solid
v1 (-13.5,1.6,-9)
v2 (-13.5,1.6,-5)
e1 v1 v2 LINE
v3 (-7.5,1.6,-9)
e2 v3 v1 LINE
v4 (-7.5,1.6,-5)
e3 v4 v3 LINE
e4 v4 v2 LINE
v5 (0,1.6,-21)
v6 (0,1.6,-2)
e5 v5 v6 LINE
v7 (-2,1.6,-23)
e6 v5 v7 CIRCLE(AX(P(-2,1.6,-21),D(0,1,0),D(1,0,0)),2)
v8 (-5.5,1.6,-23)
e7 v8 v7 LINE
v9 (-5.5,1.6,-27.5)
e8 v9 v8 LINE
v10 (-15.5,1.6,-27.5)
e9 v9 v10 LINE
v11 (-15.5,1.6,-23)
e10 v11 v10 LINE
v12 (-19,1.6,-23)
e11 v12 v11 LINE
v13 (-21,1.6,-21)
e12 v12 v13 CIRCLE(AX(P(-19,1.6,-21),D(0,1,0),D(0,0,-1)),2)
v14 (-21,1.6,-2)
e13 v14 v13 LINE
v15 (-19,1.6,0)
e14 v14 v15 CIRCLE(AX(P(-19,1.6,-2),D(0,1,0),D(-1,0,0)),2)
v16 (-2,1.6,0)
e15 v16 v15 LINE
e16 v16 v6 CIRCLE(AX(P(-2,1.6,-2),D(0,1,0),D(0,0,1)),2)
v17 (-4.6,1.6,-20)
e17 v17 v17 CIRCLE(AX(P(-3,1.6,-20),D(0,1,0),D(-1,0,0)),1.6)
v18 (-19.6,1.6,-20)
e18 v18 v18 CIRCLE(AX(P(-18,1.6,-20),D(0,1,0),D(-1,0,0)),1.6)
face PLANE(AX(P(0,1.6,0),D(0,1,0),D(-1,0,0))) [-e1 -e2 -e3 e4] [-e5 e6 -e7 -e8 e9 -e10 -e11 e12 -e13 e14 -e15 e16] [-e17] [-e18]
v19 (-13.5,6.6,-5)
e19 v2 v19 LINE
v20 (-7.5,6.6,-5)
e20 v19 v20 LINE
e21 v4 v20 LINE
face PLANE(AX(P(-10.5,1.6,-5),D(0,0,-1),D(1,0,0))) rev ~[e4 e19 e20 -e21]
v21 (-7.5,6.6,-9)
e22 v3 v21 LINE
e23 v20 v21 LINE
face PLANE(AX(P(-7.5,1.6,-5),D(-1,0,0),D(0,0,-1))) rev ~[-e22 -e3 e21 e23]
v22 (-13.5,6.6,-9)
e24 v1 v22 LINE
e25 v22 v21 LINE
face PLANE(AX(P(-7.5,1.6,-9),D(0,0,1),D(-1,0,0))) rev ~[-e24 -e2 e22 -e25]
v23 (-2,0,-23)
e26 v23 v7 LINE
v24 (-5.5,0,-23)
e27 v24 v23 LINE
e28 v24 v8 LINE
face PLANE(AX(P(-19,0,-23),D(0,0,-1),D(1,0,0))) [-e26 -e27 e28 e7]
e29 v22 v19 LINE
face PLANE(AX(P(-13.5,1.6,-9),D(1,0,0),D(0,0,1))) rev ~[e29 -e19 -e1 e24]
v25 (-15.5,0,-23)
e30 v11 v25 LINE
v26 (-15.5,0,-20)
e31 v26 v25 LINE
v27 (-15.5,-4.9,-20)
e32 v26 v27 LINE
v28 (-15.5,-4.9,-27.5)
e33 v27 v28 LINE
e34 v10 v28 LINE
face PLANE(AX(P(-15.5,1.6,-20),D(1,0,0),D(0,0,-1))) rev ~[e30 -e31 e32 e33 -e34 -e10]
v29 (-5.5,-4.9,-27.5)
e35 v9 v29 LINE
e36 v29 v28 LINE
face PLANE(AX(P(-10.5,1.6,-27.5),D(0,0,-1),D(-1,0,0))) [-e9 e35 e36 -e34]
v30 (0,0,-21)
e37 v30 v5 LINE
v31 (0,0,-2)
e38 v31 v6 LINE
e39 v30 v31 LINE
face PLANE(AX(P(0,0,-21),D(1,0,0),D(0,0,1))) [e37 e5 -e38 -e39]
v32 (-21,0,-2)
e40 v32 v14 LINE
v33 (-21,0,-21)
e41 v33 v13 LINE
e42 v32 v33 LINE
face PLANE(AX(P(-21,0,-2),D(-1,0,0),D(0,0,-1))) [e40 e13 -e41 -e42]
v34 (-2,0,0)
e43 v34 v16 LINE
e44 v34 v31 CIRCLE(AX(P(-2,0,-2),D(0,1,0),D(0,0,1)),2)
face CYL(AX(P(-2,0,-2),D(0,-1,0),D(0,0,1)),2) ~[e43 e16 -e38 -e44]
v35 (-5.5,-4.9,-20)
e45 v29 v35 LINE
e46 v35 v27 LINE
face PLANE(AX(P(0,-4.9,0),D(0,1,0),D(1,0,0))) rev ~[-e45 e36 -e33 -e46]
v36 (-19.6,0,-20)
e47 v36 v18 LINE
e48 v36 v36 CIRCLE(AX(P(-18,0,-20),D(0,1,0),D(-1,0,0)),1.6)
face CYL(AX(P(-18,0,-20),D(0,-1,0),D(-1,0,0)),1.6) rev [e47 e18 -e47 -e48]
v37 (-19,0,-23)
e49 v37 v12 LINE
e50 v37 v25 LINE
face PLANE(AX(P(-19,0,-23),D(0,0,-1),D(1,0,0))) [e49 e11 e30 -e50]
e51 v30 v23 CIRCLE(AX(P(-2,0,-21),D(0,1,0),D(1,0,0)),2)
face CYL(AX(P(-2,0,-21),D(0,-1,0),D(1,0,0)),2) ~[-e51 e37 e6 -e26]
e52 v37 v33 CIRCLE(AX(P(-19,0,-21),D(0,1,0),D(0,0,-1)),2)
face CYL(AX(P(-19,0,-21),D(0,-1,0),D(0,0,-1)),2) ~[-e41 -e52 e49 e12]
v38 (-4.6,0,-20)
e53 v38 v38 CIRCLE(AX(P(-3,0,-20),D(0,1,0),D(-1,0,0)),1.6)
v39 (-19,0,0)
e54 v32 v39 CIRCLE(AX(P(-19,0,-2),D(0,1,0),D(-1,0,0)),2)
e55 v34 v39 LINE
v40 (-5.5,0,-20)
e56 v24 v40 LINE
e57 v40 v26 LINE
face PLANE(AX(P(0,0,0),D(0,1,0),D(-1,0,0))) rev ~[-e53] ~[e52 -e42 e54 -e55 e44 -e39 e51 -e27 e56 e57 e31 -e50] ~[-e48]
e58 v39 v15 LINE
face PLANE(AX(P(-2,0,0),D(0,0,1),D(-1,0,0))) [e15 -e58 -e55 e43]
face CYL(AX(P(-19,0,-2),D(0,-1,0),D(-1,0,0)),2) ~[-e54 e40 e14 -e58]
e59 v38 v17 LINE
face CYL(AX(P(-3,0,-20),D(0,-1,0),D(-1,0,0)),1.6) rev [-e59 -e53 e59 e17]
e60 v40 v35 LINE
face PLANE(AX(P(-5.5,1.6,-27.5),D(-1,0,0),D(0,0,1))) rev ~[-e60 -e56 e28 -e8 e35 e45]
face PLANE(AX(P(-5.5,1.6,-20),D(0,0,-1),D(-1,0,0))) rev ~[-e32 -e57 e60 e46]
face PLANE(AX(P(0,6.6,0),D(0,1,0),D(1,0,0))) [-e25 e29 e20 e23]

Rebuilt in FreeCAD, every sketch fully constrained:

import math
import FreeCAD as App
import Part
import Sketcher

doc = App.newDocument("Part")
params = doc.addObject("Spreadsheet::Sheet", "Params")
for row, (alias, value) in enumerate([
    ("sketch1_radius", "2 mm"),
    ("sketch1_diameter", "3.2 mm"),
    ("sketch1_height", "19 mm"),
    ("pad1_length", "1.6 mm"),
    ("sketch2_width", "10 mm"),
    ("sketch2_height", "7.5 mm"),
    ("pad2_length", "6.5 mm"),
    ("sketch3_height", "4 mm"),
    ("sketch3_width", "6 mm"),
    ("pad3_length", "5 mm"),
], start=1):
    params.set(f"A{row}", alias)
    params.set(f"B{row}", "=" + value)
    params.setAlias(f"B{row}", alias)

body = doc.addObject("PartDesign::Body", "Body")

# Sketch on XZ plane
sketch1 = body.newObject("Sketcher::SketchObject", "Sketch")
sketch1.AttachmentSupport = (doc.getObject("XZ_Plane"), [""])
sketch1.MapMode = "FlatFace"
sketch1.addGeometry([
    Part.LineSegment(App.Vector(-19, 0, 0), App.Vector(-2, 0, 0)),  # 0
    Part.ArcOfCircle(Part.Circle(App.Vector(-2, -2, 0), App.Vector(0, 0, 1), 2), math.radians(0), math.radians(90)),  # 1
    Part.LineSegment(App.Vector(0, -2, 0), App.Vector(0, -21, 0)),  # 2
    Part.ArcOfCircle(Part.Circle(App.Vector(-2, -21, 0), App.Vector(0, 0, 1), 2), math.radians(-90), math.radians(0)),  # 3
    Part.LineSegment(App.Vector(-2, -23, 0), App.Vector(-19, -23, 0)),  # 4
    Part.ArcOfCircle(Part.Circle(App.Vector(-19, -21, 0), App.Vector(0, 0, 1), 2), math.radians(180), math.radians(270)),  # 5
    Part.LineSegment(App.Vector(-21, -21, 0), App.Vector(-21, -2, 0)),  # 6
    Part.ArcOfCircle(Part.Circle(App.Vector(-19, -2, 0), App.Vector(0, 0, 1), 2), math.radians(90), math.radians(180)),  # 7
    Part.Circle(App.Vector(-3, -20, 0), App.Vector(0, 0, 1), 1.6),  # 8
    Part.Circle(App.Vector(-18, -20, 0), App.Vector(0, 0, 1), 1.6),  # 9
], False)
sketch1.addConstraint([
    Sketcher.Constraint("Tangent", 0, 2, 1, 2),
    Sketcher.Constraint("Tangent", 1, 1, 2, 1),
    Sketcher.Constraint("Tangent", 2, 2, 3, 2),
    Sketcher.Constraint("Tangent", 3, 1, 4, 1),
    Sketcher.Constraint("Tangent", 4, 2, 5, 2),
    Sketcher.Constraint("Tangent", 5, 1, 6, 1),
    Sketcher.Constraint("Tangent", 6, 2, 7, 2),
    Sketcher.Constraint("Tangent", 7, 1, 0, 1),
    Sketcher.Constraint("Horizontal", 0),
    Sketcher.Constraint("Vertical", 2),
    Sketcher.Constraint("Horizontal", 4),
    Sketcher.Constraint("Vertical", 6),
    Sketcher.Constraint("Equal", 1, 3),
    Sketcher.Constraint("Equal", 3, 5),
    Sketcher.Constraint("Equal", 5, 7),
    Sketcher.Constraint("Equal", 8, 9),
    Sketcher.Constraint("PointOnObject", 0, 2, -1),
    Sketcher.Constraint("PointOnObject", 1, 1, -2),
    Sketcher.Constraint("Horizontal", 8, 3, 9, 3),
    Sketcher.Constraint("Radius", 1, 2.0),
    Sketcher.Constraint("DistanceX", 8, 3, -1, 1, 3.0),
    Sketcher.Constraint("DistanceX", 9, 3, 8, 3, 15.0),
    Sketcher.Constraint("DistanceY", 3, 1, 8, 3, 3.0),
    Sketcher.Constraint("DistanceX", 5, 1, 9, 3, 3.0),
    Sketcher.Constraint("Diameter", 8, 3.2),
    Sketcher.Constraint("DistanceY", 2, 2, 2, 1, 19.0),
])
sketch1.setExpression("Constraints[19]", "Params.sketch1_radius")
sketch1.setExpression("Constraints[24]", "Params.sketch1_diameter")
sketch1.setExpression("Constraints[25]", "Params.sketch1_height")
pad1 = body.newObject("PartDesign::Pad", "Pad")
pad1.Profile = sketch1
pad1.setExpression("Length", "Params.pad1_length")
pad1.Reversed = True

# Sketch on XZ plane
sketch2 = body.newObject("Sketcher::SketchObject", "Sketch001")
sketch2.AttachmentSupport = (doc.getObject("XZ_Plane"), [""])
sketch2.MapMode = "FlatFace"
sketch2.AttachmentOffset = App.Placement(App.Vector(0, 0, -1.6), App.Rotation())
sketch2.addGeometry([
    Part.LineSegment(App.Vector(-6, -28, 0), App.Vector(-16, -28, 0)),
    Part.LineSegment(App.Vector(-16, -28, 0), App.Vector(-16, -20, 0)),
    Part.LineSegment(App.Vector(-16, -20, 0), App.Vector(-6, -20, 0)),
    Part.LineSegment(App.Vector(-6, -20, 0), App.Vector(-6, -28, 0)),
], False)
sketch2.addConstraint([
    Sketcher.Constraint("Coincident", 0, 2, 1, 1),
    Sketcher.Constraint("Coincident", 1, 2, 2, 1),
    Sketcher.Constraint("Coincident", 2, 2, 3, 1),
    Sketcher.Constraint("Coincident", 3, 2, 0, 1),
    Sketcher.Constraint("Horizontal", 0),
    Sketcher.Constraint("Vertical", 1),
    Sketcher.Constraint("Horizontal", 2),
    Sketcher.Constraint("Vertical", 3),
    Sketcher.Constraint("DistanceX", 0, 2, 0, 1, 10.0),
    Sketcher.Constraint("DistanceY", 1, 1, 1, 2, 7.5),
    Sketcher.Constraint("DistanceY", 1, 2, -1, 1, 20.0),
    Sketcher.Constraint("DistanceX", 0, 2, -1, 1, 15.5),
])
sketch2.setExpression("Constraints[8]", "Params.sketch2_width")
sketch2.setExpression("Constraints[9]", "Params.sketch2_height")
pad2 = body.newObject("PartDesign::Pad", "Pad001")
pad2.Profile = sketch2
pad2.setExpression("Length", "Params.pad2_length")

# Sketch on XZ plane
sketch3 = body.newObject("Sketcher::SketchObject", "Sketch002")
sketch3.AttachmentSupport = (doc.getObject("XZ_Plane"), [""])
sketch3.MapMode = "FlatFace"
sketch3.AttachmentOffset = App.Placement(App.Vector(0, 0, -1.6), App.Rotation())
sketch3.addGeometry([
    Part.LineSegment(App.Vector(-7.5, -9, 0), App.Vector(-13.5, -9, 0)),
    Part.LineSegment(App.Vector(-13.5, -9, 0), App.Vector(-13.5, -5, 0)),
    Part.LineSegment(App.Vector(-13.5, -5, 0), App.Vector(-7.5, -5, 0)),
    Part.LineSegment(App.Vector(-7.5, -5, 0), App.Vector(-7.5, -9, 0)),
], False)
sketch3.addConstraint([
    Sketcher.Constraint("Coincident", 0, 2, 1, 1),
    Sketcher.Constraint("Coincident", 1, 2, 2, 1),
    Sketcher.Constraint("Coincident", 2, 2, 3, 1),
    Sketcher.Constraint("Coincident", 3, 2, 0, 1),
    Sketcher.Constraint("Horizontal", 0),
    Sketcher.Constraint("Vertical", 1),
    Sketcher.Constraint("Horizontal", 2),
    Sketcher.Constraint("Vertical", 3),
    Sketcher.Constraint("DistanceY", 1, 1, 1, 2, 4.0),
    Sketcher.Constraint("DistanceX", 2, 2, -1, 1, 7.5),
    Sketcher.Constraint("DistanceX", 0, 2, 0, 1, 6.0),
    Sketcher.Constraint("DistanceY", 0, 2, -1, 1, 9.0),
])
sketch3.setExpression("Constraints[8]", "Params.sketch3_height")
sketch3.setExpression("Constraints[10]", "Params.sketch3_width")
pad3 = body.newObject("PartDesign::Pad", "Pad002")
pad3.Profile = sketch3
pad3.setExpression("Length", "Params.pad3_length")
pad3.Reversed = True

doc.recompute()
